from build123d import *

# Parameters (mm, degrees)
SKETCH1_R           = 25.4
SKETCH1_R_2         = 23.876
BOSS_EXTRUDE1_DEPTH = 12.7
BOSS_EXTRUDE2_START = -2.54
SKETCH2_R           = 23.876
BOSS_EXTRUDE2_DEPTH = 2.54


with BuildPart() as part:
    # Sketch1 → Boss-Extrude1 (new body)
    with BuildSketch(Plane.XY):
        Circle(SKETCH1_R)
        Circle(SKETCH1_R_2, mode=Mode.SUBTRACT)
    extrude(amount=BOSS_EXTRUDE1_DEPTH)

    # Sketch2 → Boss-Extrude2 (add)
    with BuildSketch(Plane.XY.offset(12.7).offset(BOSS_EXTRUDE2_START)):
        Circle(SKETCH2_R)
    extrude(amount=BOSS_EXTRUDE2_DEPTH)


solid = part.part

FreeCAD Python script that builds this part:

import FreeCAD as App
import Part
import Sketcher
from FreeCAD import Vector
Q = App.Units.Quantity

doc = App.newDocument("Part")
body = doc.addObject("PartDesign::Body", "Body")

# Sketch on XY plane
sketch1 = body.newObject("Sketcher::SketchObject", "Sketch")
sketch1.AttachmentSupport = (doc.getObject("XY_Plane"), [""])
sketch1.MapMode = "FlatFace"
sketch1.addGeometry([
    Part.Circle(Vector(0, 0, 0), Vector(0, 0, 1), 25),
    Part.Circle(Vector(0, 0, 0), Vector(0, 0, 1), 24),
], False)
sketch1.addConstraint([
    Sketcher.Constraint("Coincident", 0, 3, -1, 1),
    Sketcher.Constraint("Coincident", 1, 3, -1, 1),
    Sketcher.Constraint("Diameter", 0, Q("2 in")),
    Sketcher.Constraint("Diameter", 1, Q("1.88 in")),
])
pad1 = body.newObject("PartDesign::Pad", "Pad")
pad1.Profile = sketch1
pad1.Length = Q("0.5 in")

# Sketch on XY plane
sketch2 = body.newObject("Sketcher::SketchObject", "Sketch001")
sketch2.AttachmentSupport = (doc.getObject("XY_Plane"), [""])
sketch2.MapMode = "FlatFace"
sketch2.AttachmentOffset = App.Placement(Vector(0, 0, 0.4 * 25.4), App.Rotation())
sketch2.addGeometry(Part.Circle(Vector(0, 0, 0), Vector(0, 0, 1), 24), False)
sketch2.addConstraint([
    Sketcher.Constraint("Coincident", 0, 3, -1, 1),
    Sketcher.Constraint("Diameter", 0, Q("1.88 in")),
])
pad2 = body.newObject("PartDesign::Pad", "Pad001")
pad2.Profile = sketch2
pad2.Length = Q("0.1 in")

doc.recompute()
